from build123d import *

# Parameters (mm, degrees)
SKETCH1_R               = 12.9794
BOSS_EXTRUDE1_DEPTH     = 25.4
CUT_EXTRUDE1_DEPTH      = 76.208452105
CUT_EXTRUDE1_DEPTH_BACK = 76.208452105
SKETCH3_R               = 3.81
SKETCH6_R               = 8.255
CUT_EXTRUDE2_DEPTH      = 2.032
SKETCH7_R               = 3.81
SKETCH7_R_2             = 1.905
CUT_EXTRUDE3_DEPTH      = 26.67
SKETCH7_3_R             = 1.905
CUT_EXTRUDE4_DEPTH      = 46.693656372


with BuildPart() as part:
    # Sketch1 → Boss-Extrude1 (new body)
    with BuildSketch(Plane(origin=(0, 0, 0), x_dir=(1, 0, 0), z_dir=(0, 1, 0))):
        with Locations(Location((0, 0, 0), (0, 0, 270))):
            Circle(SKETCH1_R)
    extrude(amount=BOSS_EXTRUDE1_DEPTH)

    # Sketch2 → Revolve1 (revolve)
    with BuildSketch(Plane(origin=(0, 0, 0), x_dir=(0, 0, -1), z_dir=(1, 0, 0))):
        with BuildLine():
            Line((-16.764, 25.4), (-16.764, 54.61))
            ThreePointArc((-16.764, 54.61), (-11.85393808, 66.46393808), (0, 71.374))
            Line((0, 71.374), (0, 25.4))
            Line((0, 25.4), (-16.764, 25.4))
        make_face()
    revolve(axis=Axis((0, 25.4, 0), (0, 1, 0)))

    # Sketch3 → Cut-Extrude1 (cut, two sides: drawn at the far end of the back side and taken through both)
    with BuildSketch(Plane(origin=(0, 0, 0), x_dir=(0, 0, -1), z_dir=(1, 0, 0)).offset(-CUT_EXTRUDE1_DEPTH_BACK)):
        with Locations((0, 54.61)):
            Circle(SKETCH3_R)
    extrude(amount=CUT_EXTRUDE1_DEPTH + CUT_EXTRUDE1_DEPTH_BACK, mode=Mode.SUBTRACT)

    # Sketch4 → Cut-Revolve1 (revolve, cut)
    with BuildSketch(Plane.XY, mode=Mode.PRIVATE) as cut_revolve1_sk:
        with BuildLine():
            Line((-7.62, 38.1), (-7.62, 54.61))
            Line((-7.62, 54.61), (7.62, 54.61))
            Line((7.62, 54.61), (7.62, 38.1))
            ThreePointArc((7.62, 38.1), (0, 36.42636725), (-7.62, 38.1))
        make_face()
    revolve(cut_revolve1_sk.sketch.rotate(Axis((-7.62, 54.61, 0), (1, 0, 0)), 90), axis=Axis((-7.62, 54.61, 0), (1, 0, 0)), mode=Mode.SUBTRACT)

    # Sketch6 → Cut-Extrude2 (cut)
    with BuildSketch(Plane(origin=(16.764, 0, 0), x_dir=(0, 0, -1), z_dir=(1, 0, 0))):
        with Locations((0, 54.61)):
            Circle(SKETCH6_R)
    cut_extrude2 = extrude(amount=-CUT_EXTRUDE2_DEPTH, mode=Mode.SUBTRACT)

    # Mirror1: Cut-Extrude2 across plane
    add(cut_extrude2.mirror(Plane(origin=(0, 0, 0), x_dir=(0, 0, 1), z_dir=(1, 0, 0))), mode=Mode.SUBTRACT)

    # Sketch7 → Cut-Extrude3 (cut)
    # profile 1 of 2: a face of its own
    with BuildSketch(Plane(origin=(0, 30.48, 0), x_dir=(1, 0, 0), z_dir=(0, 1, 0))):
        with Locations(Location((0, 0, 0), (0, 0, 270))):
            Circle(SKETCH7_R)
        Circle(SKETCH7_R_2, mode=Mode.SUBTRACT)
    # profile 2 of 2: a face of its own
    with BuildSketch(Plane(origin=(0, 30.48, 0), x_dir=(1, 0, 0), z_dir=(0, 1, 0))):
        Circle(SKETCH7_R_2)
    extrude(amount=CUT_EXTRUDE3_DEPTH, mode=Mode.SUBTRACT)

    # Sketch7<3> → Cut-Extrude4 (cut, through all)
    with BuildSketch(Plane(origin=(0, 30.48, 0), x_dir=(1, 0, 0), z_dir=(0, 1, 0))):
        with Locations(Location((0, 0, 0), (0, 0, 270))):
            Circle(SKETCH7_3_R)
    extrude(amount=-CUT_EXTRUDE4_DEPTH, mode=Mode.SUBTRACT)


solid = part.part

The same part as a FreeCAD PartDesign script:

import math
import FreeCAD as App
import Part
import Sketcher
from FreeCAD import Vector
Q = App.Units.Quantity

doc = App.newDocument("Part")
params = doc.addObject("Spreadsheet::Sheet", "Params")
for row, (alias, value) in enumerate([
    ("sketch1_diameter", "1.022 in"),
    ("pad1_length", "1 in"),
    ("sketch2_radius", "0.66 in"),
    ("sketch2_width", "1.15 in"),
    ("revolution_angle", "360 deg"),
    ("sketch3_diameter", "0.3 in"),
    ("sketch4_width", "0.6 in"),
    ("sketch4_height", "0.65 in"),
    ("groove_angle", "360 deg"),
    ("sketch5_diameter", "0.65 in"),
    ("pocket2_length", "0.08 in"),
    ("sketch6_diameter", "0.3 in"),
    ("pocket3_length", "1.05 in"),
    ("sketch7_diameter", "0.15 in"),
], start=1):
    params.set(f"A{row}", alias)
    params.set(f"B{row}", "=" + value)
    params.setAlias(f"B{row}", alias)

body = doc.addObject("PartDesign::Body", "Body")

sketch1 = body.newObject("Sketcher::SketchObject", "Sketch")
sketch1.AttachmentSupport = (doc.getObject("XZ_Plane"), [""])
sketch1.MapMode = "FlatFace"
sketch1.addGeometry(Part.Circle(Vector(0, 0, 0), Vector(0, 0, 1), 13), False)
sketch1.addConstraint(Sketcher.Constraint("Coincident", 0, 3, -1, 1))
sketch1.addConstraint(Sketcher.Constraint("Diameter", 0, Q("1.022 in")))
sketch1.setExpression("Constraints[1]", "Params.sketch1_diameter")
pad1 = body.newObject("PartDesign::Pad", "Pad")
pad1.Profile = sketch1
pad1.setExpression("Length", "Params.pad1_length")
pad1.Reversed = True

sketch2 = body.newObject("Sketcher::SketchObject", "Sketch001")
sketch2.AttachmentSupport = (doc.getObject("YZ_Plane"), [""])
sketch2.MapMode = "FlatFace"
sketch2.addGeometry(Part.LineSegment(Vector(55, 17, 0), Vector(25, 17, 0)), False)
sketch2.addGeometry(Part.LineSegment(Vector(25, 17, 0), Vector(25, 0, 0)), False)
sketch2.addGeometry(Part.LineSegment(Vector(25, 0, 0), Vector(71, 0, 0)), False)
sketch2.addGeometry(Part.ArcOfCircle(Part.Circle(Vector(55, 0, 0), Vector(0, 0, 1), 17), math.radians(0), math.radians(90)), False)
sketch2.addConstraint(Sketcher.Constraint("Coincident", 0, 2, 1, 1))
sketch2.addConstraint(Sketcher.Constraint("Coincident", 1, 2, 2, 1))
sketch2.addConstraint(Sketcher.Constraint("Coincident", 2, 2, 3, 1))
sketch2.addConstraint(Sketcher.Constraint("Tangent", 3, 2, 0, 1))
sketch2.addConstraint(Sketcher.Constraint("Horizontal", 0))
sketch2.addConstraint(Sketcher.Constraint("Vertical", 1))
sketch2.addConstraint(Sketcher.Constraint("Horizontal", 2))
sketch2.addConstraint(Sketcher.Constraint("PointOnObject", 3, 3, -1))
sketch2.addConstraint(Sketcher.Constraint("PointOnObject", 1, 2, -1))
sketch2.addConstraint(Sketcher.Constraint("Radius", 3, Q("0.66 in")))
sketch2.addConstraint(Sketcher.Constraint("DistanceX", -1, 1, 0, 2, Q("1 in")))
sketch2.addConstraint(Sketcher.Constraint("DistanceX", 0, 2, 0, 1, Q("1.15 in")))
sketch2.setExpression("Constraints[9]", "Params.sketch2_radius")
sketch2.setExpression("Constraints[11]", "Params.sketch2_width")
revolution = body.newObject("PartDesign::Revolution", "Revolution")
revolution.Profile = sketch2
revolution.ReferenceAxis = (sketch2, ["H_Axis"])
revolution.setExpression("Angle", "Params.revolution_angle")

sketch3 = body.newObject("Sketcher::SketchObject", "Sketch002")
sketch3.AttachmentSupport = (doc.getObject("YZ_Plane"), [""])
sketch3.MapMode = "FlatFace"
sketch3.addGeometry(Part.Circle(Vector(54.6, 0, 0), Vector(0, 0, 1), 3.8), False)
sketch3.addConstraint(Sketcher.Constraint("PointOnObject", 0, 3, -1))
sketch3.addConstraint(Sketcher.Constraint("Diameter", 0, Q("0.3 in")))
sketch3.addConstraint(Sketcher.Constraint("DistanceX", -1, 1, 0, 3, Q("2.15 in")))
sketch3.setExpression("Constraints[1]", "Params.sketch3_diameter")
pocket1 = body.newObject("PartDesign::Pocket", "Pocket")
pocket1.Profile = sketch3
pocket1.Type = "ThroughAll"
pocket1.Midplane = True

sketch4 = body.newObject("Sketcher::SketchObject", "Sketch003")
sketch4.AttachmentSupport = (doc.getObject("XY_Plane"), [""])
sketch4.MapMode = "FlatFace"
sketch4.addGeometry(Part.LineSegment(Vector(-8, 55, 0), Vector(-8, 38, 0)), False)
sketch4.addGeometry(Part.ArcOfCircle(Part.Circle(Vector(0, 55, 0), Vector(0, 0, 1), 18), math.radians(-115), math.radians(-65)), False)
sketch4.addGeometry(Part.LineSegment(Vector(8, 38, 0), Vector(8, 55, 0)), False)
sketch4.addGeometry(Part.LineSegment(Vector(8, 55, 0), Vector(-8, 55, 0)), False)
sketch4.addGeometry(Part.LineSegment(Vector(-8, 55, 0), Vector(8, 55, 0)), True)
sketch4.addConstraint(Sketcher.Constraint("Coincident", 0, 2, 1, 1))
sketch4.addConstraint(Sketcher.Constraint("Coincident", 1, 2, 2, 1))
sketch4.addConstraint(Sketcher.Constraint("Coincident", 2, 2, 3, 1))
sketch4.addConstraint(Sketcher.Constraint("Coincident", 3, 2, 0, 1))
sketch4.addConstraint(Sketcher.Constraint("Vertical", 0))
sketch4.addConstraint(Sketcher.Constraint("Vertical", 2))
sketch4.addConstraint(Sketcher.Constraint("Horizontal", 3))
sketch4.addConstraint(Sketcher.Constraint("Horizontal", 4))
sketch4.addConstraint(Sketcher.Constraint("Coincident", 4, 1, 3, 2))
sketch4.addConstraint(Sketcher.Constraint("Symmetric", 0, 2, 1, 2, -2))
sketch4.addConstraint(Sketcher.Constraint("Horizontal", 1, 3, 2, 2))
sketch4.addConstraint(Sketcher.Constraint("Vertical", 1, 2, 4, 2))
sketch4.addConstraint(Sketcher.Constraint("DistanceX", 3, 2, 3, 1, Q("0.6 in")))
sketch4.addConstraint(Sketcher.Constraint("DistanceY", 0, 2, 0, 1, Q("0.65 in")))
sketch4.addConstraint(Sketcher.Constraint("DistanceY", -1, 1, 0, 2, Q("1.5 in")))
sketch4.setExpression("Constraints[12]", "Params.sketch4_width")
sketch4.setExpression("Constraints[13]", "Params.sketch4_height")
groove = body.newObject("PartDesign::Groove", "Groove")
groove.Profile = sketch4
groove.ReferenceAxis = (sketch4, ["Axis0"])
groove.setExpression("Angle", "Params.groove_angle")

sketch5 = body.newObject("Sketcher::SketchObject", "Sketch004")
sketch5.AttachmentSupport = (doc.getObject("YZ_Plane"), [""])
sketch5.MapMode = "FlatFace"
sketch5.AttachmentOffset = App.Placement(Vector(0, 0, 0.66 * 25.4), App.Rotation())
sketch5.addGeometry(Part.Circle(Vector(55, 0, 0), Vector(0, 0, 1), 8), False)
sketch5.addConstraint(Sketcher.Constraint("PointOnObject", 0, 3, -1))
sketch5.addConstraint(Sketcher.Constraint("Diameter", 0, Q("0.65 in")))
sketch5.addConstraint(Sketcher.Constraint("DistanceX", -1, 1, 0, 3, Q("2.15 in")))
sketch5.setExpression("Constraints[1]", "Params.sketch5_diameter")
pocket2 = body.newObject("PartDesign::Pocket", "Pocket001")
pocket2.Profile = sketch5
pocket2.setExpression("Length", "Params.pocket2_length")
doc.recompute()

mirrored = body.newObject("PartDesign::Mirrored", "Mirrored")
mirrored.Originals = [pocket2]
mirrored.MirrorPlane = (doc.getObject("YZ_Plane"), [""])
body.Tip = mirrored

sketch6 = body.newObject("Sketcher::SketchObject", "Sketch005")
sketch6.AttachmentSupport = (doc.getObject("XZ_Plane"), [""])
sketch6.MapMode = "FlatFace"
sketch6.AttachmentOffset = App.Placement(Vector(0, 0, -1.2 * 25.4), App.Rotation())
sketch6.addGeometry(Part.Circle(Vector(0, 0, 0), Vector(0, 0, 1), 3.8), False)
sketch6.addConstraint(Sketcher.Constraint("Coincident", 0, 3, -1, 1))
sketch6.addConstraint(Sketcher.Constraint("Diameter", 0, Q("0.3 in")))
sketch6.setExpression("Constraints[1]", "Params.sketch6_diameter")
pocket3 = body.newObject("PartDesign::Pocket", "Pocket002")
pocket3.Profile = sketch6
pocket3.setExpression("Length", "Params.pocket3_length")

sketch7 = body.newObject("Sketcher::SketchObject", "Sketch006")
sketch7.AttachmentSupport = (doc.getObject("XZ_Plane"), [""])
sketch7.MapMode = "FlatFace"
sketch7.AttachmentOffset = App.Placement(Vector(0, 0, -1.2 * 25.4), App.Rotation())
sketch7.addGeometry(Part.Circle(Vector(0, 0, 0), Vector(0, 0, 1), 1.9), False)
sketch7.addConstraint(Sketcher.Constraint("Coincident", 0, 3, -1, 1))
sketch7.addConstraint(Sketcher.Constraint("Diameter", 0, Q("0.15 in")))
sketch7.setExpression("Constraints[1]", "Params.sketch7_diameter")
pocket4 = body.newObject("PartDesign::Pocket", "Pocket003")
pocket4.Profile = sketch7
pocket4.Type = "ThroughAll"
pocket4.Reversed = True

doc.recompute()
